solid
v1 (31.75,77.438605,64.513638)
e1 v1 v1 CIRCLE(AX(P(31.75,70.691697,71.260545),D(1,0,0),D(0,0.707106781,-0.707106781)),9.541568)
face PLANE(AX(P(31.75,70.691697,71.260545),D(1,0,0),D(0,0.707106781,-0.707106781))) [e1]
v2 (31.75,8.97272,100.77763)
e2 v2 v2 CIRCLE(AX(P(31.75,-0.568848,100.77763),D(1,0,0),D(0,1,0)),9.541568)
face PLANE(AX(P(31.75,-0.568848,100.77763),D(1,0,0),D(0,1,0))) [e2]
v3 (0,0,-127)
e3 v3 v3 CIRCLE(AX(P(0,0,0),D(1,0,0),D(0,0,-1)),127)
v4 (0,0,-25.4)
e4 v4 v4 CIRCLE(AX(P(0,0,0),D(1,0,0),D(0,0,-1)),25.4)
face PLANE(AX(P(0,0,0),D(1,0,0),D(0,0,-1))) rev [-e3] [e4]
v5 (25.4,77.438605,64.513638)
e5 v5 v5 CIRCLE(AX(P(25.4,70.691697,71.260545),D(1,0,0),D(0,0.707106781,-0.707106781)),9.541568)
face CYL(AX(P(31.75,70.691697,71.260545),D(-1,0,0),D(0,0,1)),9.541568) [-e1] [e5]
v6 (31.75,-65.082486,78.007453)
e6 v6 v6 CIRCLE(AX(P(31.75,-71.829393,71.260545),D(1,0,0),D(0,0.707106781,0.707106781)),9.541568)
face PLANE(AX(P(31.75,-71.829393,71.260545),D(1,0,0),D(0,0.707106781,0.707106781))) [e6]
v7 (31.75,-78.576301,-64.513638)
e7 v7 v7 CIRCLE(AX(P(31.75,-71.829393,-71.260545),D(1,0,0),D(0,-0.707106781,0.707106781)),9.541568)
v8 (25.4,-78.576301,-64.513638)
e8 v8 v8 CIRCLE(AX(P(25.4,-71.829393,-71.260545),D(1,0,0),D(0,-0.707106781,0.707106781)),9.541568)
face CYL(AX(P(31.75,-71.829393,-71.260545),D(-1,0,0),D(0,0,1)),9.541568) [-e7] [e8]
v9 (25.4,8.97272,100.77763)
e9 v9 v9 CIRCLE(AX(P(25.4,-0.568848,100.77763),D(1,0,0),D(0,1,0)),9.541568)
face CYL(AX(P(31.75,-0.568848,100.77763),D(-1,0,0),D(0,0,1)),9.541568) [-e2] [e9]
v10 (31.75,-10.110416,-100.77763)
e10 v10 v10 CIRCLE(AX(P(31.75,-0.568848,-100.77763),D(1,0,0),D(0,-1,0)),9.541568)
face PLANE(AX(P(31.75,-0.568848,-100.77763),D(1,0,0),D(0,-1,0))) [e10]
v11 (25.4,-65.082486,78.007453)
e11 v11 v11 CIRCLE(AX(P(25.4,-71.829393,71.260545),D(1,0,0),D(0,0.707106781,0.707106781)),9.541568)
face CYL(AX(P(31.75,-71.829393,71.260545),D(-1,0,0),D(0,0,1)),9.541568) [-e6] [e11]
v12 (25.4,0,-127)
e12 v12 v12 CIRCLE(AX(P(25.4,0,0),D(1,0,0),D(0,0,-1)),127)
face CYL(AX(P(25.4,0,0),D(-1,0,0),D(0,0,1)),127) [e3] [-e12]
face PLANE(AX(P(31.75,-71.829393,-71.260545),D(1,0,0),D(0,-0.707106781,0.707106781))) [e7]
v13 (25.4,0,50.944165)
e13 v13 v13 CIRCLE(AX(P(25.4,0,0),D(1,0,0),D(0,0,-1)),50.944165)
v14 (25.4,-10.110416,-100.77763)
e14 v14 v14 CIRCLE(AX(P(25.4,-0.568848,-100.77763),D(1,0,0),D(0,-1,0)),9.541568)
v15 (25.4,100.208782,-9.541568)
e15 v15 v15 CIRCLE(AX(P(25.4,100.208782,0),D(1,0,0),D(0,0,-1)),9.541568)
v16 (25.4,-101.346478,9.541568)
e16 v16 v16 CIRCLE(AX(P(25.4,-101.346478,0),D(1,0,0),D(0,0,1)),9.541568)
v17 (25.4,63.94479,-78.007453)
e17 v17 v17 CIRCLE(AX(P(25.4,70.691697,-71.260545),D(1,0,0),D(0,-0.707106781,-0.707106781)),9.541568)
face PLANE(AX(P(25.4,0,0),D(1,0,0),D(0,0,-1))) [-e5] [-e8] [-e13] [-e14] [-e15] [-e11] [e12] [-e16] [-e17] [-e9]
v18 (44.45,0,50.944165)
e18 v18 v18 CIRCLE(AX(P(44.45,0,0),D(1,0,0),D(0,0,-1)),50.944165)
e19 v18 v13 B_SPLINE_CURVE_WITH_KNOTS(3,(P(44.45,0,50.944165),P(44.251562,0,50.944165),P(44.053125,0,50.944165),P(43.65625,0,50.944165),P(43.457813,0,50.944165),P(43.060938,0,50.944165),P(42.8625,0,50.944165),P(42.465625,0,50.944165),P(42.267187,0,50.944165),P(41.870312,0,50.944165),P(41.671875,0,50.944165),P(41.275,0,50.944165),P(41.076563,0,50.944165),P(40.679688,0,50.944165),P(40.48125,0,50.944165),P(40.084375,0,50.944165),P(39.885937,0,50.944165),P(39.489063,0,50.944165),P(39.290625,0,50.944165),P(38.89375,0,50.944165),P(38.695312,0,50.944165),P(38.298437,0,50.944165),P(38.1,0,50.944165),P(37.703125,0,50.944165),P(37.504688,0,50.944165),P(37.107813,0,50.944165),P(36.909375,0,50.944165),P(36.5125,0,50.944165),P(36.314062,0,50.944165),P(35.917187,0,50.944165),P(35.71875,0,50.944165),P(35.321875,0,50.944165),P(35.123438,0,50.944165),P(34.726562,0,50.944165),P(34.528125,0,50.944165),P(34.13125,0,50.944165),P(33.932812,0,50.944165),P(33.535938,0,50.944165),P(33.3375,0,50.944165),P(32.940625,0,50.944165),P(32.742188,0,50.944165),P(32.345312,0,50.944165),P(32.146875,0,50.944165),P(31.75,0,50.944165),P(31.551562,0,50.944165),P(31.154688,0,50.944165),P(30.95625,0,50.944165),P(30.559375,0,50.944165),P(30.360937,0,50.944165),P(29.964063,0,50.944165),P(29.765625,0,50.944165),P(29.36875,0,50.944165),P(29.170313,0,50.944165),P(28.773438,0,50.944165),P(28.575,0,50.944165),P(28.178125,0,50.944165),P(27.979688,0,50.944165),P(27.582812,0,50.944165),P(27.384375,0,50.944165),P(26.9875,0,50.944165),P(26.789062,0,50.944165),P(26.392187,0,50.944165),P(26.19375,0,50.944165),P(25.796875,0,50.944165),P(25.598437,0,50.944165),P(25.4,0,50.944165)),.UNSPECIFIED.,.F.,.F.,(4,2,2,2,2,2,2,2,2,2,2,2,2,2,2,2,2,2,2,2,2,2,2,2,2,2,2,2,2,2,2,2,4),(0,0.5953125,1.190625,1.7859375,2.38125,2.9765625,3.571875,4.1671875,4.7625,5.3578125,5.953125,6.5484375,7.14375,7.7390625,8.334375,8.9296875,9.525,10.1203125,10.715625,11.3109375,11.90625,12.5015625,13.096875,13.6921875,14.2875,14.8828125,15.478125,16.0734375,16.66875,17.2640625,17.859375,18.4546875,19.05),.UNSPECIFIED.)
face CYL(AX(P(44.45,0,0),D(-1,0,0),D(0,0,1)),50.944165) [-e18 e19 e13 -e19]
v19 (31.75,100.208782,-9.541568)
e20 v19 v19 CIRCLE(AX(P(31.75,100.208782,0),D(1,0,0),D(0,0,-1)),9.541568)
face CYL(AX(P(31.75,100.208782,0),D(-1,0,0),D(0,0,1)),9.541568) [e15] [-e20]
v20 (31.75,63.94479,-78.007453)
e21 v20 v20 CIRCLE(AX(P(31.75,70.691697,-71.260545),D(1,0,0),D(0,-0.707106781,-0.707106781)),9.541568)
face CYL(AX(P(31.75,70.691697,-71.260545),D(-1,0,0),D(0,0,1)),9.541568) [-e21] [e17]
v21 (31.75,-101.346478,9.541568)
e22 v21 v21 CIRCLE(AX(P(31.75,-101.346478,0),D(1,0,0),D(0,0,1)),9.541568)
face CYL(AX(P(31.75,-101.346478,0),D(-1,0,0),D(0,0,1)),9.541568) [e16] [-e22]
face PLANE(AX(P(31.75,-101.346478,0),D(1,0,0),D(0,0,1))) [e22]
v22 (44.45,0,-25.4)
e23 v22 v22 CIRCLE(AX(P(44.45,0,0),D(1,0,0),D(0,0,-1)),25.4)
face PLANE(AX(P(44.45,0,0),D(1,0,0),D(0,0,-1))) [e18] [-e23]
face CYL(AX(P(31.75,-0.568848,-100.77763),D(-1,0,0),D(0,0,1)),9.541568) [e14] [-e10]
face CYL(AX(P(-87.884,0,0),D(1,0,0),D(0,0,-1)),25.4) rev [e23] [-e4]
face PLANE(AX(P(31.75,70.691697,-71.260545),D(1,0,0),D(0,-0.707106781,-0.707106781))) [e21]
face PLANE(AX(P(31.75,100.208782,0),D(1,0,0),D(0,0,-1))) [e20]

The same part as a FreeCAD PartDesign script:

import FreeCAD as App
import Part
import Sketcher
from FreeCAD import Vector
Q = App.Units.Quantity

doc = App.newDocument("Part")
body = doc.addObject("PartDesign::Body", "Body")

# Sketch on YZ plane
sketch1 = body.newObject("Sketcher::SketchObject", "Sketch")
sketch1.AttachmentSupport = (doc.getObject("YZ_Plane"), [""])
sketch1.MapMode = "FlatFace"
sketch1.addGeometry(Part.Circle(Vector(0, 0, 0), Vector(0, 0, 1), 127), False)
sketch1.addConstraint(Sketcher.Constraint("Coincident", 0, 3, -1, 1))
sketch1.addConstraint(Sketcher.Constraint("Diameter", 0, Q("10 in")))
pad1 = body.newObject("PartDesign::Pad", "Pad")
pad1.Profile = sketch1
pad1.Length = Q("1 in")

# Sketch on YZ plane
sketch2 = body.newObject("Sketcher::SketchObject", "Sketch001")
sketch2.AttachmentSupport = (doc.getObject("YZ_Plane"), [""])
sketch2.MapMode = "FlatFace"
sketch2.AttachmentOffset = App.Placement(Vector(0, 0, 1 * 25.4), App.Rotation())
sketch2.addGeometry(Part.Circle(Vector(100, 0, 0), Vector(0, 0, 1), 10), False)
sketch2.addConstraint(Sketcher.Constraint("PointOnObject", 0, 3, -1))
sketch2.addConstraint(Sketcher.Constraint("Diameter", 0, 19.083137))
sketch2.addConstraint(Sketcher.Constraint("DistanceX", -1, 1, 0, 3, 100.208782))
pad2 = body.newObject("PartDesign::Pad", "Pad001")
pad2.Profile = sketch2
pad2.Length = Q("0.25 in")
doc.recompute()

datumline = body.newObject("PartDesign::Line", "DatumLine")
datumline.Placement = App.Placement(Vector(0, -0.568848, 0), App.Rotation(Vector(0, 0, 1), Vector(1, 0, 0)))
polarpattern = body.newObject("PartDesign::PolarPattern", "PolarPattern")
polarpattern.Originals = [pad2]
polarpattern.Axis = (datumline, [""])
polarpattern.Angle = 360
polarpattern.Occurrences = 8
body.Tip = polarpattern

# Sketch on YZ plane
sketch3 = body.newObject("Sketcher::SketchObject", "Sketch002")
sketch3.AttachmentSupport = (doc.getObject("YZ_Plane"), [""])
sketch3.MapMode = "FlatFace"
sketch3.AttachmentOffset = App.Placement(Vector(0, 0, 1 * 25.4), App.Rotation())
sketch3.addGeometry(Part.Circle(Vector(0, 0, 0), Vector(0, 0, 1), 51), False)
sketch3.addConstraint(Sketcher.Constraint("Coincident", 0, 3, -1, 1))
sketch3.addConstraint(Sketcher.Constraint("Diameter", 0, 101.88833))
pad3 = body.newObject("PartDesign::Pad", "Pad002")
pad3.Profile = sketch3
pad3.Length = Q("0.75 in")

# Sketch on YZ plane
sketch4 = body.newObject("Sketcher::SketchObject", "Sketch003")
sketch4.AttachmentSupport = (doc.getObject("YZ_Plane"), [""])
sketch4.MapMode = "FlatFace"
sketch4.AttachmentOffset = App.Placement(Vector(0, 0, 1.75 * 25.4), App.Rotation())
sketch4.addGeometry(Part.Circle(Vector(0, 0, 0), Vector(0, 0, 1), 25), False)
sketch4.addConstraint(Sketcher.Constraint("Coincident", 0, 3, -1, 1))
sketch4.addConstraint(Sketcher.Constraint("Diameter", 0, Q("2 in")))
pocket1 = body.newObject("PartDesign::Pocket", "Pocket")
pocket1.Profile = sketch4
pocket1.Length = Q("5.21 in")

doc.recompute()
